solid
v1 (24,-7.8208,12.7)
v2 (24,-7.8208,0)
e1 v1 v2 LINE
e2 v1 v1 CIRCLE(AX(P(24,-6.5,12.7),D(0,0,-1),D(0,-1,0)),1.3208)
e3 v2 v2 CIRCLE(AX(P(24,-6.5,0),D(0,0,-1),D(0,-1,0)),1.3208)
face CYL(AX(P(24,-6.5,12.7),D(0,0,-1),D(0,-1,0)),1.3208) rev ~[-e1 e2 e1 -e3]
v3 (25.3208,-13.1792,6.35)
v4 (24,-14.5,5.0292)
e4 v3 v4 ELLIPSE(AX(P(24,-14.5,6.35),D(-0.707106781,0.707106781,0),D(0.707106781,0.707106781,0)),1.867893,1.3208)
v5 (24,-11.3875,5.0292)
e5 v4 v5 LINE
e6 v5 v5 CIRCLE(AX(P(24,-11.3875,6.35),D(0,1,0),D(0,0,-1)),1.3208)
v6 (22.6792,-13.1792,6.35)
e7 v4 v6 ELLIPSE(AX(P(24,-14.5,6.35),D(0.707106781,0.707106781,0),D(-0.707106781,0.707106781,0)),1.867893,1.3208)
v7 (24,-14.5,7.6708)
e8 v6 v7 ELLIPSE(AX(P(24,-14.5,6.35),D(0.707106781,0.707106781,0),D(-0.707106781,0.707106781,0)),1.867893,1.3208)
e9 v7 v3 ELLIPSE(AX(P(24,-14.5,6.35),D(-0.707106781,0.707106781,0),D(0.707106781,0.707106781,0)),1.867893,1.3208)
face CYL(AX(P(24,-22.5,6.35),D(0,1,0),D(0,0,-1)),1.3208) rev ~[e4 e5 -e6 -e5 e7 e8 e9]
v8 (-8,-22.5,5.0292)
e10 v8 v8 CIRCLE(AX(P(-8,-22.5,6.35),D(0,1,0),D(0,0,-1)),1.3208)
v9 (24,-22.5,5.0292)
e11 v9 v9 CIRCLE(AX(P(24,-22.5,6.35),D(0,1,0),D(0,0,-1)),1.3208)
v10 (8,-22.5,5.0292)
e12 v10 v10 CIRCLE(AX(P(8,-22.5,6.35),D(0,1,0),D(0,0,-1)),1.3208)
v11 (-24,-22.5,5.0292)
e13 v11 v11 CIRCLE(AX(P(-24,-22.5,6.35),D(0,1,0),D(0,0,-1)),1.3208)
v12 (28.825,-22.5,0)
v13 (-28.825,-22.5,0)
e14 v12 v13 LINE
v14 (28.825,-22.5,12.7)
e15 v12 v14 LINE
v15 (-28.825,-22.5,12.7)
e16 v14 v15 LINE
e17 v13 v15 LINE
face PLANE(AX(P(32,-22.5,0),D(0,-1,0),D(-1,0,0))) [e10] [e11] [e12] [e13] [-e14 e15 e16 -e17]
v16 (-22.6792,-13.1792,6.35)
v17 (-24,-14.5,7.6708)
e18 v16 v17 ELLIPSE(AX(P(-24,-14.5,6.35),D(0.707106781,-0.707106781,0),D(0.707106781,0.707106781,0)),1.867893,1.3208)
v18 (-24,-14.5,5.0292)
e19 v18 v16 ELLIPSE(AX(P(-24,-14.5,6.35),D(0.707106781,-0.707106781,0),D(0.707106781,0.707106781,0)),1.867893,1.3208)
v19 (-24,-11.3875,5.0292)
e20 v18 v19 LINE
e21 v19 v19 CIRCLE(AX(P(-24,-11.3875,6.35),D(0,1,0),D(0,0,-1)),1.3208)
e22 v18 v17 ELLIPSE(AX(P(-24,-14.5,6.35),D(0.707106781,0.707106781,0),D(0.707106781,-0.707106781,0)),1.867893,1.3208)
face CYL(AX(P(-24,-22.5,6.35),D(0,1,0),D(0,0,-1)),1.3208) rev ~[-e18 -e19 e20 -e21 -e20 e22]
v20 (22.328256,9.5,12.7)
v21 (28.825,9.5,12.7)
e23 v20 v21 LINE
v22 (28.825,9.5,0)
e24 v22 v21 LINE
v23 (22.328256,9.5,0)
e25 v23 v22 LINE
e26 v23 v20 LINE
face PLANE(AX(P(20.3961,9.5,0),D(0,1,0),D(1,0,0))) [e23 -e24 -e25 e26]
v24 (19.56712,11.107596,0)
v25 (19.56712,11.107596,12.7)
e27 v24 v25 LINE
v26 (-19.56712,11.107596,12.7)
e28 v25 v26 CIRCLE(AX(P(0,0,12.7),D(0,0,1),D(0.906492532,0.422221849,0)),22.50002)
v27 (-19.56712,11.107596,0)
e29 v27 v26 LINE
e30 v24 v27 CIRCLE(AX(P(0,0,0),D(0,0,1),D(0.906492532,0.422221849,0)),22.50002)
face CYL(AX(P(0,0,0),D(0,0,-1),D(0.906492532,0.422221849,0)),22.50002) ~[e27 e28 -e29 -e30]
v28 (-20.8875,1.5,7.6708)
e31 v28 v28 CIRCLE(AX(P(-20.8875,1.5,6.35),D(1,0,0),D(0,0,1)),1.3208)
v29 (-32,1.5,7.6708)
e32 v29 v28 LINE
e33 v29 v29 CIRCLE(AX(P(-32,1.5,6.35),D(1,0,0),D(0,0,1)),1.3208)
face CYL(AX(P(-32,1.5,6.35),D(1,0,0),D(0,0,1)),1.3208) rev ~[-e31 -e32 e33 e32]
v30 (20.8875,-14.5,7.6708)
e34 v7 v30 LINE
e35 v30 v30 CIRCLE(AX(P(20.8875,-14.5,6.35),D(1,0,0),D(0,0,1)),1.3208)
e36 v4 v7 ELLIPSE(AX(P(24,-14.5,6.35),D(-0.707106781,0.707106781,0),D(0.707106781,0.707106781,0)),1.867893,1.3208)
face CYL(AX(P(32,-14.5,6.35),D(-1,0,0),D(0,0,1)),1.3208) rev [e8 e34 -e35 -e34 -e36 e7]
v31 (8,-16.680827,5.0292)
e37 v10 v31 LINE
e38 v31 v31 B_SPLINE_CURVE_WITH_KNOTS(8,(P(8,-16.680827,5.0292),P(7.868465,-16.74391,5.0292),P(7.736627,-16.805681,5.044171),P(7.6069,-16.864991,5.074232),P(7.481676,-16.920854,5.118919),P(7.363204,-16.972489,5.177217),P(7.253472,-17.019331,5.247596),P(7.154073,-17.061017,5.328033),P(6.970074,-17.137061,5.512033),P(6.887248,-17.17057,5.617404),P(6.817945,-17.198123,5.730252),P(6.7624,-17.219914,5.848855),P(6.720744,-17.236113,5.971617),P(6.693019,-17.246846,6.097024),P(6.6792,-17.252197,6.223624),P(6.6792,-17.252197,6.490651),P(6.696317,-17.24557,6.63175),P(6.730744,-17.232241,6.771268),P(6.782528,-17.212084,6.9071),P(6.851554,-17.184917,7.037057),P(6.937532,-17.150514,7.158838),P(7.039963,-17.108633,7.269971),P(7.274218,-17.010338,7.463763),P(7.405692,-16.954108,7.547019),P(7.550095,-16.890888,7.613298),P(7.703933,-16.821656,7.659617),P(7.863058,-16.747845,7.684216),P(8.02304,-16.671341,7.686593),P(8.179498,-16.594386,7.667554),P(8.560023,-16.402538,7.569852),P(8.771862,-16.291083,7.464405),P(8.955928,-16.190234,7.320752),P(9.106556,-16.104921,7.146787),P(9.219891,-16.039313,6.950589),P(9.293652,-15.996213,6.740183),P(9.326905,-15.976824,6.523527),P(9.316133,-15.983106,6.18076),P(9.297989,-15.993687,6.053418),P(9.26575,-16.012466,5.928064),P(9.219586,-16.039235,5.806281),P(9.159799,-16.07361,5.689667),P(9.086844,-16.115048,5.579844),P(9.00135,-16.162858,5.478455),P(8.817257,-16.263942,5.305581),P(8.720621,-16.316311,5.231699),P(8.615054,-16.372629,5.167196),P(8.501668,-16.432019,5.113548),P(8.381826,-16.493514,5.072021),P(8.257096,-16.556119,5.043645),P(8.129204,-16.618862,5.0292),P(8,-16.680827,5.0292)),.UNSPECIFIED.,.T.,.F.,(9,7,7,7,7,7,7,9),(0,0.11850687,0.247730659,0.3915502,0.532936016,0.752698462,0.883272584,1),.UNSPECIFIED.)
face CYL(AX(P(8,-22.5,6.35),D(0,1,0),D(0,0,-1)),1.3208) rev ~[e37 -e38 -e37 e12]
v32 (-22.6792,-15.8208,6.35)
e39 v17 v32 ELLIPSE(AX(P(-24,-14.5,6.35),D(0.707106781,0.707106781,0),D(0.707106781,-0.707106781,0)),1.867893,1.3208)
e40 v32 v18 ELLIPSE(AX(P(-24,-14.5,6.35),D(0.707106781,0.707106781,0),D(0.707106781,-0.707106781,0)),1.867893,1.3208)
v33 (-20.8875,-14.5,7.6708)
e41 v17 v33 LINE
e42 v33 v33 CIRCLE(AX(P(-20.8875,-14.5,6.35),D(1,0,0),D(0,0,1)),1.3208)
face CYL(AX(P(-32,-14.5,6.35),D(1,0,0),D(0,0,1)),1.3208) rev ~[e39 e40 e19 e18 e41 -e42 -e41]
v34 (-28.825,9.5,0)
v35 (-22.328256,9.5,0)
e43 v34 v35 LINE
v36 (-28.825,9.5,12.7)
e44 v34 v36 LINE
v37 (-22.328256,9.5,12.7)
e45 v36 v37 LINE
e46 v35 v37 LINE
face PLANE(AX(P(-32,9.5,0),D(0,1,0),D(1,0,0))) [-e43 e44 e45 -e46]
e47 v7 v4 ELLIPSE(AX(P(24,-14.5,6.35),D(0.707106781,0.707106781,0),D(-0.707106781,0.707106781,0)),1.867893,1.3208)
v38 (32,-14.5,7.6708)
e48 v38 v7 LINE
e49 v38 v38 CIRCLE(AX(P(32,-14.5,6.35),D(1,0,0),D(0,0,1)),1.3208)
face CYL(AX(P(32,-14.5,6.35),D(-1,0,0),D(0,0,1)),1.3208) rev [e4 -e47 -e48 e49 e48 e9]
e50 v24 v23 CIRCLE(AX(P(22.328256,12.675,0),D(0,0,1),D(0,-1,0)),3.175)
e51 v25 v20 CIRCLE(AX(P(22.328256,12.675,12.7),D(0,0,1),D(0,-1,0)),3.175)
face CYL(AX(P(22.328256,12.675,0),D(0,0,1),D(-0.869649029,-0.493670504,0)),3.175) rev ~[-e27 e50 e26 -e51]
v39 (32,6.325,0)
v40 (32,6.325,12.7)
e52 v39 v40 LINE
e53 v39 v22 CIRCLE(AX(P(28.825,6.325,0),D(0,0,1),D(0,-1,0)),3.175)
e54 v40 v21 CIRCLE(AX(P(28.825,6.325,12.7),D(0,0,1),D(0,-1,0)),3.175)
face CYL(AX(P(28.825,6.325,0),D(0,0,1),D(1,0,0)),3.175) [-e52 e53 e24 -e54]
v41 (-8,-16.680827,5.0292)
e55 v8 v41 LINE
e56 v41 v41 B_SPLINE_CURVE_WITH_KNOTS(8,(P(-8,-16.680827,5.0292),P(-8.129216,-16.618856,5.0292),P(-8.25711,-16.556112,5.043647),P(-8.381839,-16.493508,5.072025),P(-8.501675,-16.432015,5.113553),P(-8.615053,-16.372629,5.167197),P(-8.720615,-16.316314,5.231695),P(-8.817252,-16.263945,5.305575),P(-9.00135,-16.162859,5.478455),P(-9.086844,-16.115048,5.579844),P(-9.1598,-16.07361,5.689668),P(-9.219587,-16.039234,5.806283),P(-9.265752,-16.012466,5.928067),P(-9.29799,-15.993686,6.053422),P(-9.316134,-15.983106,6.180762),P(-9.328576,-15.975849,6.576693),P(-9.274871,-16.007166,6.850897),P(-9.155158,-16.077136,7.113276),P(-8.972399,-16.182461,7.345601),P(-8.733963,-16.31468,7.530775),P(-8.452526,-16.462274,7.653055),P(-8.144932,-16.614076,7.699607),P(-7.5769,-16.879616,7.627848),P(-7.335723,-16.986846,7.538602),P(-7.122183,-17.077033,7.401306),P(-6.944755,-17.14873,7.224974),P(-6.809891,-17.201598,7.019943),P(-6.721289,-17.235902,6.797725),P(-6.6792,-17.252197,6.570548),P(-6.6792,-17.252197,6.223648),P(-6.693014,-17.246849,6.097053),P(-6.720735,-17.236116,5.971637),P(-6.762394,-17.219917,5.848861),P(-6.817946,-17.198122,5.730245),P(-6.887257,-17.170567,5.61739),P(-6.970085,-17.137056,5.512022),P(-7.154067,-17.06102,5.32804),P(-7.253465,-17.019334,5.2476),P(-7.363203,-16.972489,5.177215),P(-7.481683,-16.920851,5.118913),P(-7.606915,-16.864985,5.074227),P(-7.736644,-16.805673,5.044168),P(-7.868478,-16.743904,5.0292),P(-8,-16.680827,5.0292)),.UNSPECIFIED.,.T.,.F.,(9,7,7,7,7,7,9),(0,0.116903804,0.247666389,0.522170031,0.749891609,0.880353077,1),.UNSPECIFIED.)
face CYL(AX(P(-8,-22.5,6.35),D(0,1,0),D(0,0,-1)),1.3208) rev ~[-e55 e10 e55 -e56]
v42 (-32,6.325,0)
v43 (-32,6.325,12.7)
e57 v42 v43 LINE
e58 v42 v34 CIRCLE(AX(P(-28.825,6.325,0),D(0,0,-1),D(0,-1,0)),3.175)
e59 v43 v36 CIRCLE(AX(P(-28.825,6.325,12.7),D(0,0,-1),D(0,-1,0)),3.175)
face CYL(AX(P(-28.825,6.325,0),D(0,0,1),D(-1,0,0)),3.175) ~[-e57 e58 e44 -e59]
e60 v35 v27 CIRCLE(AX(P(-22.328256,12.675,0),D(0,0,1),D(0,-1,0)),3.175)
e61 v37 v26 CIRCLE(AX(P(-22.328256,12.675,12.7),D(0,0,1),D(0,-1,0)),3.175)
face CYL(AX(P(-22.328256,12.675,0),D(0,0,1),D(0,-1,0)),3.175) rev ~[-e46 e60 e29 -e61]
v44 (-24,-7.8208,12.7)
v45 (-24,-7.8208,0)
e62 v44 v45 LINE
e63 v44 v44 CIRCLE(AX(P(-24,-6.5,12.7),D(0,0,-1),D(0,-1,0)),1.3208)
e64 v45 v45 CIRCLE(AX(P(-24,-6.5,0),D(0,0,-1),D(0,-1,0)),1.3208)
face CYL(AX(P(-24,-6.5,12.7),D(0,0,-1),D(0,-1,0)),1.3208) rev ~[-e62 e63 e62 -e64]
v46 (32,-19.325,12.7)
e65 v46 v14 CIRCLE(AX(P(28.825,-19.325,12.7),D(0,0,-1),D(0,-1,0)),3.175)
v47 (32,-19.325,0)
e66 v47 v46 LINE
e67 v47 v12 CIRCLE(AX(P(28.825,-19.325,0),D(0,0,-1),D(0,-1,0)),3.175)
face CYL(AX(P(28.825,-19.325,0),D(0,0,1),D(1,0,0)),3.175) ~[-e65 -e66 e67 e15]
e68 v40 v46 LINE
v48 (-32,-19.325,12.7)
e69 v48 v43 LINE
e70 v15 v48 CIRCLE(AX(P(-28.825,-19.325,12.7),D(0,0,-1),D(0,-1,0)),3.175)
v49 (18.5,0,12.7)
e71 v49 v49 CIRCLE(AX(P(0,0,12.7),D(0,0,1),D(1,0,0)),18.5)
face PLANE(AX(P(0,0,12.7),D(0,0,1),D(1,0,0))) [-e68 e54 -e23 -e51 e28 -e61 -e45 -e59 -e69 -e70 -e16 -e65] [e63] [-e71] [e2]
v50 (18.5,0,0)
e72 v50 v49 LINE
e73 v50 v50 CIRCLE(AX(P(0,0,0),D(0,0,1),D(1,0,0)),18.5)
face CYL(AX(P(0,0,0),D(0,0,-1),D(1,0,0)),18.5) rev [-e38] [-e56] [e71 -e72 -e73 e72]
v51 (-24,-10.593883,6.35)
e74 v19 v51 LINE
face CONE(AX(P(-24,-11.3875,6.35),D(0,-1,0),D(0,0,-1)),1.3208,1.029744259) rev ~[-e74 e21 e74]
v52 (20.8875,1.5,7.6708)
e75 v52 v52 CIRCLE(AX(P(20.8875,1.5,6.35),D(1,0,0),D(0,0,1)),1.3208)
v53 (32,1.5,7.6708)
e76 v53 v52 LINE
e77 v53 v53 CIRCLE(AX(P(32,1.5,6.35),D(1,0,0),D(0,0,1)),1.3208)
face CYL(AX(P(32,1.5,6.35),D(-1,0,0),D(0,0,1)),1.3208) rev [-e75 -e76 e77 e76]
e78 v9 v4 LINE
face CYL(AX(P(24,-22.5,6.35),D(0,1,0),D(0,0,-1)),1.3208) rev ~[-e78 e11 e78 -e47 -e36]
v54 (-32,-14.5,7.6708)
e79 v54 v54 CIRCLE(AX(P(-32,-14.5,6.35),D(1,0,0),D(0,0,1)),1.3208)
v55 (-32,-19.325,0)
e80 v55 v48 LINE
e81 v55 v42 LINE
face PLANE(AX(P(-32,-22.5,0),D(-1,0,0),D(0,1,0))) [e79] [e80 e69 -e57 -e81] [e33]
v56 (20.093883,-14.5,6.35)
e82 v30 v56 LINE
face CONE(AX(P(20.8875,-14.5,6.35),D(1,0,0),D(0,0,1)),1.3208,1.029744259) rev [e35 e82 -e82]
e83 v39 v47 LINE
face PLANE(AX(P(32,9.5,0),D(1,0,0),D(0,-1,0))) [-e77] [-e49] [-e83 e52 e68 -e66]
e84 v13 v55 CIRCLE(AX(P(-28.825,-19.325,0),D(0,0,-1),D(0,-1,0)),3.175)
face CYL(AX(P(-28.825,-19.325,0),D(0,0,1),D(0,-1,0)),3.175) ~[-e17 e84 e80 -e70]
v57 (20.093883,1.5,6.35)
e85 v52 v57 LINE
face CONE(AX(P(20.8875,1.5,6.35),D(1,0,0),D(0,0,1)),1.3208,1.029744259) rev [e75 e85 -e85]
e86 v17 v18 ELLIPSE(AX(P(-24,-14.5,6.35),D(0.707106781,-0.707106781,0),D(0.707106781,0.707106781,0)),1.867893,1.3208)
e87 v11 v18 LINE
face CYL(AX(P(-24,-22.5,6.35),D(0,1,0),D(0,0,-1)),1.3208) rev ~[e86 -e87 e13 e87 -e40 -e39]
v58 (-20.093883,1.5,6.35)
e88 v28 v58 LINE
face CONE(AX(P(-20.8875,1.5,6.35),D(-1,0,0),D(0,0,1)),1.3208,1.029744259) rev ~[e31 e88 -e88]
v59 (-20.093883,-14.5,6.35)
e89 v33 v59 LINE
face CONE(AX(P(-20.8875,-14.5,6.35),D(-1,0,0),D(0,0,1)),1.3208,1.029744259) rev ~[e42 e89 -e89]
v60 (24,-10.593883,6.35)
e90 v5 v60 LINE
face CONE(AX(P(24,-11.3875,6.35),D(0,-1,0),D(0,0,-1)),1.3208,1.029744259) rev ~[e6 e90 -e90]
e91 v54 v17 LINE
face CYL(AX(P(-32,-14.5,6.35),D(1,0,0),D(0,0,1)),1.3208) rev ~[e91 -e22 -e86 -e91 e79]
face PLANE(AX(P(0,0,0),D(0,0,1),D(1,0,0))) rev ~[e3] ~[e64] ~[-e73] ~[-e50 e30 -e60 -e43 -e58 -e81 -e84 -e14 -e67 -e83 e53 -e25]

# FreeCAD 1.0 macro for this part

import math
import FreeCAD as App
import Part
import Sketcher
Q = App.Units.Quantity


def edges_at(feature, points):
    """Names of the edges that pass closest to the given points."""
    edges = feature.Shape.Edges
    near = lambda p: min(range(len(edges)), key=lambda i: edges[i].distToShape(Part.Vertex(*p))[0])
    return sorted({f"Edge{near(p) + 1}" for p in points})

doc = App.newDocument("Part")
body = doc.addObject("PartDesign::Body", "Body")

sketch1 = body.newObject("Sketcher::SketchObject", "Sketch")
sketch1.AttachmentSupport = (doc.getObject("XY_Plane"), [""])
sketch1.MapMode = "FlatFace"
sketch1.addGeometry(Part.LineSegment(App.Vector(32, -22, 0), App.Vector(32, 10, 0)), False)
sketch1.addGeometry(Part.LineSegment(App.Vector(32, 10, 0), App.Vector(20, 10, 0)), False)
sketch1.addGeometry(Part.ArcOfCircle(Part.Circle(App.Vector(0, 0, 0), App.Vector(0, 0, 1), 23), math.radians(25), math.radians(155)), False)
sketch1.addGeometry(Part.LineSegment(App.Vector(-20, 10, 0), App.Vector(-32, 10, 0)), False)
sketch1.addGeometry(Part.LineSegment(App.Vector(-32, 10, 0), App.Vector(-32, -22, 0)), False)
sketch1.addGeometry(Part.LineSegment(App.Vector(-32, -22, 0), App.Vector(32, -22, 0)), False)
sketch1.addGeometry(Part.Circle(App.Vector(0, 0, 0), App.Vector(0, 0, 1), 18), False)
sketch1.addConstraint(Sketcher.Constraint("Coincident", 0, 2, 1, 1))
sketch1.addConstraint(Sketcher.Constraint("Coincident", 1, 2, 2, 1))
sketch1.addConstraint(Sketcher.Constraint("Coincident", 2, 2, 3, 1))
sketch1.addConstraint(Sketcher.Constraint("Coincident", 3, 2, 4, 1))
sketch1.addConstraint(Sketcher.Constraint("Coincident", 4, 2, 5, 1))
sketch1.addConstraint(Sketcher.Constraint("Coincident", 5, 2, 0, 1))
sketch1.addConstraint(Sketcher.Constraint("Vertical", 0))
sketch1.addConstraint(Sketcher.Constraint("Horizontal", 1))
sketch1.addConstraint(Sketcher.Constraint("Horizontal", 3))
sketch1.addConstraint(Sketcher.Constraint("Vertical", 4))
sketch1.addConstraint(Sketcher.Constraint("Horizontal", 5))
sketch1.addConstraint(Sketcher.Constraint("Coincident", 2, 3, -1, 1))
sketch1.addConstraint(Sketcher.Constraint("Coincident", 6, 3, -1, 1))
sketch1.addConstraint(Sketcher.Constraint("Symmetric", 0, 2, 3, 2, -2))
sketch1.addConstraint(Sketcher.Constraint("Diameter", 6, Q("1.4567 in")))
sketch1.addConstraint(Sketcher.Constraint("Radius", 2, 22.5))
sketch1.addConstraint(Sketcher.Constraint("DistanceX", 5, 1, 5, 2, 64.0))
sketch1.addConstraint(Sketcher.Constraint("DistanceY", 0, 1, 0, 2, 32.0))
sketch1.addConstraint(Sketcher.Constraint("DistanceY", 4, 2, -1, 1, 22.5))
pad1 = body.newObject("PartDesign::Pad", "Pad")
pad1.Profile = sketch1
pad1.Length = Q("0.5 in")
doc.recompute()

fillet = body.newObject("PartDesign::Fillet", "Fillet")
fillet.Base = (pad1, edges_at(pad1, [
    (32, 9.5, 6.35),
    (20.396, 9.5, 6.35),
    (-20.396, 9.5, 6.35),
    (-32, 9.5, 6.35),
    (-32, -22.5, 6.35),
    (32, -22.5, 6.35),
]))
fillet.Radius = Q("0.125 in")

sketch2 = body.newObject("Sketcher::SketchObject", "Sketch001")
sketch2.AttachmentSupport = (doc.getObject("YZ_Plane"), [""])
sketch2.MapMode = "FlatFace"
sketch2.AttachmentOffset = App.Placement(App.Vector(0, 0, -32), App.Rotation())
sketch2.addGeometry(Part.Circle(App.Vector(1.5, 6.3, 0), App.Vector(0, 0, 1), 1.3), False)
sketch2.addGeometry(Part.Circle(App.Vector(-14.5, 6.3, 0), App.Vector(0, 0, 1), 1.3), False)
sketch2.addConstraint(Sketcher.Constraint("Equal", 0, 1))
sketch2.addConstraint(Sketcher.Constraint("Horizontal", 0, 3, 1, 3))
sketch2.addConstraint(Sketcher.Constraint("Diameter", 0, Q("0.104 in")))
sketch2.addConstraint(Sketcher.Constraint("DistanceY", -1, 1, 0, 3, Q("0.25 in")))
sketch2.addConstraint(Sketcher.Constraint("DistanceX", -1, 1, 0, 3, 1.5))
sketch2.addConstraint(Sketcher.Constraint("DistanceX", 1, 3, -1, 1, 14.5))
doc.recompute()
hole = body.newObject("PartDesign::Hole", "Hole")
hole.Profile = sketch2
hole.ThreadType = "None"
hole.Diameter = Q("0.104 in")
hole.DepthType = "Dimension"
hole.Depth = Q("0.4375 in")
hole.DrillPoint = "Angled"
hole.DrillPointAngle = 118
hole.Reversed = True

sketch3 = body.newObject("Sketcher::SketchObject", "Sketch002")
sketch3.AttachmentSupport = (doc.getObject("XZ_Plane"), [""])
sketch3.MapMode = "FlatFace"
sketch3.AttachmentOffset = App.Placement(App.Vector(0, 0, 22.5), App.Rotation())
sketch3.addGeometry(Part.Circle(App.Vector(-8, 6.3, 0), App.Vector(0, 0, 1), 1.3), False)
sketch3.addGeometry(Part.Circle(App.Vector(8, 6.3, 0), App.Vector(0, 0, 1), 1.3), False)
sketch3.addGeometry(Part.Circle(App.Vector(24, 6.3, 0), App.Vector(0, 0, 1), 1.3), False)
sketch3.addGeometry(Part.Circle(App.Vector(-24, 6.3, 0), App.Vector(0, 0, 1), 1.3), False)
sketch3.addConstraint(Sketcher.Constraint("Equal", 0, 1))
sketch3.addConstraint(Sketcher.Constraint("Equal", 1, 2))
sketch3.addConstraint(Sketcher.Constraint("Equal", 2, 3))
sketch3.addConstraint(Sketcher.Constraint("Symmetric", 0, 3, 1, 3, -2))
sketch3.addConstraint(Sketcher.Constraint("Symmetric", 2, 3, 3, 3, -2))
sketch3.addConstraint(Sketcher.Constraint("Horizontal", 1, 3, 2, 3))
sketch3.addConstraint(Sketcher.Constraint("Diameter", 0, Q("0.104 in")))
sketch3.addConstraint(Sketcher.Constraint("DistanceY", -1, 1, 0, 3, Q("0.25 in")))
sketch3.addConstraint(Sketcher.Constraint("DistanceX", 0, 3, -1, 1, 8.0))
sketch3.addConstraint(Sketcher.Constraint("DistanceX", -1, 1, 2, 3, 24.0))
doc.recompute()
hole2 = body.newObject("PartDesign::Hole", "Hole001")
hole2.Profile = sketch3
hole2.ThreadType = "None"
hole2.Diameter = Q("0.104 in")
hole2.DepthType = "Dimension"
hole2.Depth = Q("0.4375 in")
hole2.DrillPoint = "Angled"
hole2.DrillPointAngle = 118
doc.recompute()

mirrored = body.newObject("PartDesign::Mirrored", "Mirrored")
mirrored.Originals = [hole]
mirrored.MirrorPlane = (doc.getObject("YZ_Plane"), [""])
body.Tip = mirrored

sketch4 = body.newObject("Sketcher::SketchObject", "Sketch003")
sketch4.AttachmentSupport = (doc.getObject("XY_Plane"), [""])
sketch4.MapMode = "FlatFace"
sketch4.AttachmentOffset = App.Placement(App.Vector(0, 0, 0.5 * 25.4), App.Rotation())
sketch4.addGeometry(Part.Circle(App.Vector(-24, -6.5, 0), App.Vector(0, 0, 1), 1.3), False)
sketch4.addGeometry(Part.Circle(App.Vector(24, -6.5, 0), App.Vector(0, 0, 1), 1.3), False)
sketch4.addConstraint(Sketcher.Constraint("Equal", 0, 1))
sketch4.addConstraint(Sketcher.Constraint("Symmetric", 0, 3, 1, 3, -2))
sketch4.addConstraint(Sketcher.Constraint("Diameter", 0, Q("0.104 in")))
sketch4.addConstraint(Sketcher.Constraint("DistanceY", 0, 3, -1, 1, Q("0.2559 in")))
sketch4.addConstraint(Sketcher.Constraint("DistanceX", 0, 3, -1, 1, 24.0))
doc.recompute()
hole3 = body.newObject("PartDesign::Hole", "Hole002")
hole3.Profile = sketch4
hole3.ThreadType = "None"
hole3.Diameter = Q("0.104 in")
hole3.DepthType = "ThroughAll"

doc.recompute()
